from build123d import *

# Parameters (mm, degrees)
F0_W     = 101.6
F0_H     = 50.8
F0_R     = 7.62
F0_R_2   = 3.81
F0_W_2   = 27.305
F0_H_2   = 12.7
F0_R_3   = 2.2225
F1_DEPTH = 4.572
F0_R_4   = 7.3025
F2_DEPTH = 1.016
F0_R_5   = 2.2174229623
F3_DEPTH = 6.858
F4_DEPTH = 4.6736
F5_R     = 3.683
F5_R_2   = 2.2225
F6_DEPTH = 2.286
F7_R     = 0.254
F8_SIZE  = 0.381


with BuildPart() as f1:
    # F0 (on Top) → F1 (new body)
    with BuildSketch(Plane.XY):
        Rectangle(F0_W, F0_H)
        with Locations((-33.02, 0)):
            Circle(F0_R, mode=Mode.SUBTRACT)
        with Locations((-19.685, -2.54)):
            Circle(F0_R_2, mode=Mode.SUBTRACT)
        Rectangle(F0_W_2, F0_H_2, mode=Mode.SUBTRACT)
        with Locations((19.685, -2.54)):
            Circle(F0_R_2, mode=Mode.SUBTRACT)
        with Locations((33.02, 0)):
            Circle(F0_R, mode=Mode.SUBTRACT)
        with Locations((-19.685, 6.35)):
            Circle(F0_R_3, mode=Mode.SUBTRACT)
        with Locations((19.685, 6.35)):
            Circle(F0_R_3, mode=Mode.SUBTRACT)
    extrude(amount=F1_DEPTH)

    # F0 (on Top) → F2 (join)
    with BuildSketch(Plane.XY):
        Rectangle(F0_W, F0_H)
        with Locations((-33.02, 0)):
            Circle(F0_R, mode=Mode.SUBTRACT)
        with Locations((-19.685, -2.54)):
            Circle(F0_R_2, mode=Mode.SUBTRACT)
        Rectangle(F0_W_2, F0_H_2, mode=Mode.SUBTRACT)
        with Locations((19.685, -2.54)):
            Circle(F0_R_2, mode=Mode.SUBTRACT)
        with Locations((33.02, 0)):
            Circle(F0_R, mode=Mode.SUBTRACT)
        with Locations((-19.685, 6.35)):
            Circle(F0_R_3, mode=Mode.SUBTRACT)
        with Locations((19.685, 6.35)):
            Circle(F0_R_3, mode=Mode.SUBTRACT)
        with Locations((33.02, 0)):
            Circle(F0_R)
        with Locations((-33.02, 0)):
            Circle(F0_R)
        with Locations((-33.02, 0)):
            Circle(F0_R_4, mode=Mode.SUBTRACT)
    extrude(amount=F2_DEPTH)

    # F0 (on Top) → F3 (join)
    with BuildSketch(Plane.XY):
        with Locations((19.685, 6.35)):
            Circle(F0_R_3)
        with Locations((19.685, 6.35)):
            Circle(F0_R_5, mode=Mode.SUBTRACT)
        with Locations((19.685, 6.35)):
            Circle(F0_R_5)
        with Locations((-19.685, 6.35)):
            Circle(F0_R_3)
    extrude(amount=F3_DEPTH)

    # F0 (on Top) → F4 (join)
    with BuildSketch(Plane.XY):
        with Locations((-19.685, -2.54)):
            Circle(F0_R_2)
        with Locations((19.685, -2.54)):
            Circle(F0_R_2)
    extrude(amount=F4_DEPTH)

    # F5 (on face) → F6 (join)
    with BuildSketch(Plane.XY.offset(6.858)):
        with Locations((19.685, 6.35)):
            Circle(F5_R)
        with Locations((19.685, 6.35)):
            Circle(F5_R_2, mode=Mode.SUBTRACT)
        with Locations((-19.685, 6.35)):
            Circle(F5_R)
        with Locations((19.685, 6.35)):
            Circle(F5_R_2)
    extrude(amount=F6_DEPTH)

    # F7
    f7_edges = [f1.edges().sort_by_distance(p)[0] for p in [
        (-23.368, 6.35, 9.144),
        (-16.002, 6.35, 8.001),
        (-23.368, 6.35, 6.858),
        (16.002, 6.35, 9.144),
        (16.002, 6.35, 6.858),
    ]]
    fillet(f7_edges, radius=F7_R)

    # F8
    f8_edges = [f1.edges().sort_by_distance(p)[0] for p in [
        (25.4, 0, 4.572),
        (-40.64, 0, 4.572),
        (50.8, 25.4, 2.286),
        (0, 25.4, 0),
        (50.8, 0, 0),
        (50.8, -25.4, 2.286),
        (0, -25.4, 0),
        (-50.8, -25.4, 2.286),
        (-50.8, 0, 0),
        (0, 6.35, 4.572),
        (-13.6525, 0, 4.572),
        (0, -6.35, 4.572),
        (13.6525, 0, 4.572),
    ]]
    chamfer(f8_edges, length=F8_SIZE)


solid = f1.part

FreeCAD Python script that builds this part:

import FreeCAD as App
import Part
import Sketcher

V = App.Vector
Q = App.Units.Quantity


def edges_at(feature, points):
    """Names of the edges that pass closest to the given points."""
    edges = feature.Shape.Edges
    near = lambda p: min(range(len(edges)), key=lambda i: edges[i].distToShape(Part.Vertex(*p))[0])
    return sorted({f"Edge{near(p) + 1}" for p in points})


def add_polygon(sketch, points):
    """Adds a closed chain of lines whose ends are joined by coincident constraints."""
    first, n = sketch.GeometryCount, len(points)
    for a, b in zip(points, points[1:] + points[:1]):
        sketch.addGeometry(Part.LineSegment(App.Vector(*a, 0), App.Vector(*b, 0)), False)
    for i in range(n):
        sketch.addConstraint(Sketcher.Constraint("Coincident", first + i, 2, first + (i + 1) % n, 1))

doc = App.newDocument("Part")
body = doc.addObject("PartDesign::Body", "Body")

sketch1 = body.newObject("Sketcher::SketchObject", "Sketch")
sketch1.AttachmentSupport = (doc.getObject("XY_Plane"), [""])
sketch1.MapMode = "FlatFace"
add_polygon(sketch1, [(-50.8, 25.4), (-50.8, -25.4), (50.8, -25.4), (50.8, 25.4)])
sketch1.addGeometry(Part.Circle(V(-33.02, 0, 0), V(0, 0, 1), 7.62), False)
sketch1.addGeometry(Part.Circle(V(-19.685, -2.54, 0), V(0, 0, 1), 3.81), False)
add_polygon(sketch1, [(13.6525, -6.35), (-13.6525, -6.35), (-13.6525, 6.35), (13.6525, 6.35)])
sketch1.addGeometry(Part.Circle(V(19.685, -2.54, 0), V(0, 0, 1), 3.81), False)
sketch1.addGeometry(Part.Circle(V(33.02, 0, 0), V(0, 0, 1), 7.62), False)
sketch1.addGeometry(Part.Circle(V(-19.685, 6.35, 0), V(0, 0, 1), 2.2225), False)
sketch1.addGeometry(Part.Circle(V(19.685, 6.35, 0), V(0, 0, 1), 2.2225), False)
sketch1.addConstraint([
    Sketcher.Constraint("Vertical", 0),
    Sketcher.Constraint("Horizontal", 1),
    Sketcher.Constraint("Vertical", 2),
    Sketcher.Constraint("Horizontal", 3),
    Sketcher.Constraint("Horizontal", 6),
    Sketcher.Constraint("Vertical", 7),
    Sketcher.Constraint("Horizontal", 8),
    Sketcher.Constraint("Vertical", 9),
    Sketcher.Constraint("Equal", 5, 10),
    Sketcher.Constraint("Equal", 4, 11),
    Sketcher.Constraint("Equal", 12, 13),
    Sketcher.Constraint("Symmetric", 4, 3, 11, 3, -1, 1),
    Sketcher.Constraint("Symmetric", 0, 2, 2, 2, -1, 1),
    Sketcher.Constraint("Symmetric", 6, 2, 8, 2, -1, 1),
    Sketcher.Constraint("Symmetric", 5, 3, 10, 3, -2),
    Sketcher.Constraint("Symmetric", 12, 3, 13, 3, -2),
    Sketcher.Constraint("PointOnObject", 4, 3, -1),
    Sketcher.Constraint("Horizontal", 13, 3, 7, 2),
    Sketcher.Constraint("Vertical", 5, 3, 12, 3),
    Sketcher.Constraint("Diameter", 4, Q("0.6 in")),
    Sketcher.Constraint("Diameter", 5, Q("0.3 in")),
    Sketcher.Constraint("DistanceX", 1, 1, 1, 2, Q("4 in")),
    Sketcher.Constraint("DistanceY", 0, 2, 0, 1, Q("2 in")),
    Sketcher.Constraint("Diameter", 12, Q("0.175 in")),
    Sketcher.Constraint("DistanceY", 7, 1, 7, 2, Q("0.5 in")),
    Sketcher.Constraint("DistanceX", 4, 3, -1, 1, Q("1.3 in")),
    Sketcher.Constraint("DistanceY", 5, 3, -1, 1, Q("0.1 in")),
    Sketcher.Constraint("DistanceX", 6, 2, 6, 1, Q("1.075 in")),
    Sketcher.Constraint("DistanceX", 5, 3, 10, 3, Q("1.55 in")),
])
pad1 = body.newObject("PartDesign::Pad", "Pad")
pad1.Profile = sketch1
pad1.Length = Q("0.18 in")

sketch2 = body.newObject("Sketcher::SketchObject", "Sketch001")
sketch2.AttachmentSupport = (doc.getObject("XY_Plane"), [""])
sketch2.MapMode = "FlatFace"
add_polygon(sketch2, [(-50.8, 25.4), (-50.8, -25.4), (50.8, -25.4), (50.8, 25.4)])
sketch2.addGeometry(Part.Circle(V(-33.02, 0, 0), V(0, 0, 1), 7.3025), False)
sketch2.addGeometry(Part.Circle(V(-19.685, -2.54, 0), V(0, 0, 1), 3.81), False)
add_polygon(sketch2, [(13.6525, -6.35), (-13.6525, -6.35), (-13.6525, 6.35), (13.6525, 6.35)])
sketch2.addGeometry(Part.Circle(V(19.685, -2.54, 0), V(0, 0, 1), 3.81), False)
sketch2.addGeometry(Part.Circle(V(-19.685, 6.35, 0), V(0, 0, 1), 2.2225), False)
sketch2.addGeometry(Part.Circle(V(19.685, 6.35, 0), V(0, 0, 1), 2.2225), False)
sketch2.addConstraint([
    Sketcher.Constraint("Vertical", 0),
    Sketcher.Constraint("Horizontal", 1),
    Sketcher.Constraint("Vertical", 2),
    Sketcher.Constraint("Horizontal", 3),
    Sketcher.Constraint("Horizontal", 6),
    Sketcher.Constraint("Vertical", 7),
    Sketcher.Constraint("Horizontal", 8),
    Sketcher.Constraint("Vertical", 9),
    Sketcher.Constraint("Equal", 5, 10),
    Sketcher.Constraint("Equal", 11, 12),
    Sketcher.Constraint("Symmetric", 0, 2, 2, 2, -1, 1),
    Sketcher.Constraint("Symmetric", 6, 2, 8, 2, -1, 1),
    Sketcher.Constraint("Symmetric", 5, 3, 10, 3, -2),
    Sketcher.Constraint("Symmetric", 11, 3, 12, 3, -2),
    Sketcher.Constraint("PointOnObject", 4, 3, -1),
    Sketcher.Constraint("Horizontal", 12, 3, 7, 2),
    Sketcher.Constraint("Vertical", 5, 3, 11, 3),
    Sketcher.Constraint("Diameter", 5, Q("0.3 in")),
    Sketcher.Constraint("DistanceX", 1, 1, 1, 2, Q("4 in")),
    Sketcher.Constraint("DistanceY", 0, 2, 0, 1, Q("2 in")),
    Sketcher.Constraint("Diameter", 4, Q("0.575 in")),
    Sketcher.Constraint("Diameter", 11, Q("0.175 in")),
    Sketcher.Constraint("DistanceY", 7, 1, 7, 2, Q("0.5 in")),
    Sketcher.Constraint("DistanceX", 4, 3, -1, 1, Q("1.3 in")),
    Sketcher.Constraint("DistanceY", 5, 3, -1, 1, Q("0.1 in")),
    Sketcher.Constraint("DistanceX", 6, 2, 6, 1, Q("1.075 in")),
    Sketcher.Constraint("DistanceX", 5, 3, 10, 3, Q("1.55 in")),
])
pad2 = body.newObject("PartDesign::Pad", "Pad001")
pad2.Profile = sketch2
pad2.Length = Q("0.04 in")

sketch3 = body.newObject("Sketcher::SketchObject", "Sketch002")
sketch3.AttachmentSupport = (doc.getObject("XY_Plane"), [""])
sketch3.MapMode = "FlatFace"
sketch3.addGeometry([
    Part.Circle(V(19.685, 6.35, 0), V(0, 0, 1), 2.2225),
    Part.Circle(V(-19.685, 6.35, 0), V(0, 0, 1), 2.2225),
], False)
sketch3.addConstraint([
    Sketcher.Constraint("Equal", 0, 1),
    Sketcher.Constraint("Symmetric", 0, 3, 1, 3, -2),
    Sketcher.Constraint("Diameter", 0, Q("0.175 in")),
    Sketcher.Constraint("DistanceY", -1, 1, 0, 3, Q("0.25 in")),
    Sketcher.Constraint("DistanceX", 1, 3, 0, 3, Q("1.55 in")),
])
pad3 = body.newObject("PartDesign::Pad", "Pad002")
pad3.Profile = sketch3
pad3.Length = Q("0.27 in")

sketch4 = body.newObject("Sketcher::SketchObject", "Sketch003")
sketch4.AttachmentSupport = (doc.getObject("XY_Plane"), [""])
sketch4.MapMode = "FlatFace"
sketch4.addGeometry([
    Part.Circle(V(-19.685, -2.54, 0), V(0, 0, 1), 3.81),
    Part.Circle(V(19.685, -2.54, 0), V(0, 0, 1), 3.81),
], False)
sketch4.addConstraint([
    Sketcher.Constraint("Equal", 0, 1),
    Sketcher.Constraint("Symmetric", 0, 3, 1, 3, -2),
    Sketcher.Constraint("Diameter", 0, Q("0.3 in")),
    Sketcher.Constraint("DistanceY", 0, 3, -1, 1, Q("0.1 in")),
    Sketcher.Constraint("DistanceX", 0, 3, 1, 3, Q("1.55 in")),
])
pad4 = body.newObject("PartDesign::Pad", "Pad003")
pad4.Profile = sketch4
pad4.Length = Q("0.184 in")

sketch5 = body.newObject("Sketcher::SketchObject", "Sketch004")
sketch5.AttachmentSupport = (doc.getObject("XY_Plane"), [""])
sketch5.MapMode = "FlatFace"
sketch5.AttachmentOffset = App.Placement(V(0, 0, 0.27 * 25.4), App.Rotation())
sketch5.addGeometry([
    Part.Circle(V(19.685, 6.35, 0), V(0, 0, 1), 3.683),
    Part.Circle(V(-19.685, 6.35, 0), V(0, 0, 1), 3.683),
], False)
sketch5.addConstraint([
    Sketcher.Constraint("Equal", 0, 1),
    Sketcher.Constraint("Symmetric", 0, 3, 1, 3, -2),
    Sketcher.Constraint("Diameter", 0, Q("0.29 in")),
    Sketcher.Constraint("DistanceY", -1, 1, 0, 3, Q("0.25 in")),
    Sketcher.Constraint("DistanceX", 1, 3, 0, 3, Q("1.55 in")),
])
pad5 = body.newObject("PartDesign::Pad", "Pad004")
pad5.Profile = sketch5
pad5.Length = Q("0.09 in")
doc.recompute()

fillet = body.newObject("PartDesign::Fillet", "Fillet")
fillet.Base = (pad5, edges_at(pad5, [
    (-23.368, 6.35, 9.144),
    (-16.002, 6.35, 8.001),
    (-23.368, 6.35, 6.858),
    (16.002, 6.35, 9.144),
    (16.002, 6.35, 6.858),
]))
fillet.Radius = Q("0.01 in")
doc.recompute()

chamfer = body.newObject("PartDesign::Chamfer", "Chamfer")
chamfer.Base = (fillet, edges_at(fillet, [
    (25.4, 0, 4.572),
    (-40.64, 0, 4.572),
    (50.8, 25.4, 2.286),
    (0, 25.4, 0),
    (50.8, 0, 0),
    (50.8, -25.4, 2.286),
    (0, -25.4, 0),
    (-50.8, -25.4, 2.286),
    (-50.8, 0, 0),
    (0, 6.35, 4.572),
    (-13.652, 0, 4.572),
    (0, -6.35, 4.572),
    (13.652, 0, 4.572),
]))
chamfer.Size = Q("0.015 in")

doc.recompute()
